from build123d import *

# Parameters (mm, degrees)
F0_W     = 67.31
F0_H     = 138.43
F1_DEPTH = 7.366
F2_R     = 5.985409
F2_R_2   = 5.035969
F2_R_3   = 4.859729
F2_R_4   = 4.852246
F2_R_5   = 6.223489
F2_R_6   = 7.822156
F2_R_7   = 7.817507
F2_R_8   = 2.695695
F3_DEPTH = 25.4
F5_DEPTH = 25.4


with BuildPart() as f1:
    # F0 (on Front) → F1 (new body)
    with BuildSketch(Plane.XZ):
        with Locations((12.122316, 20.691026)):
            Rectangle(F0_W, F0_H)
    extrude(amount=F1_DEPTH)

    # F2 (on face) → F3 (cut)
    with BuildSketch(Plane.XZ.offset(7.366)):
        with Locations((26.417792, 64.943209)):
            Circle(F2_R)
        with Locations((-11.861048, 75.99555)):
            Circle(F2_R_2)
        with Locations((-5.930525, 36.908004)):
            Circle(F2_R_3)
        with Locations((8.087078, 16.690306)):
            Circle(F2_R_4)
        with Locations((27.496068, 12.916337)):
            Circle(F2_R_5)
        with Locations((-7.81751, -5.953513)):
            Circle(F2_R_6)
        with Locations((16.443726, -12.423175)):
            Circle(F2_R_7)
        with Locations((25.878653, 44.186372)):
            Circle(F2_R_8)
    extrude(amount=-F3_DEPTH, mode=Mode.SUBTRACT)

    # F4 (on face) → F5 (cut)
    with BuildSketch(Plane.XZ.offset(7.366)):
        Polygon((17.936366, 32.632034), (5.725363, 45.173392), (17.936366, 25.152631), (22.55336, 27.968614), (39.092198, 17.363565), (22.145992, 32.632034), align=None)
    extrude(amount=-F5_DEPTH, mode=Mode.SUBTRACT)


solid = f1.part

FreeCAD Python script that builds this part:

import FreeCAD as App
import Part
import Sketcher
from FreeCAD import Vector
Q = App.Units.Quantity


def add_polygon(sketch, points):
    """Adds a closed chain of lines whose ends are joined by coincident constraints."""
    first, n = sketch.GeometryCount, len(points)
    for a, b in zip(points, points[1:] + points[:1]):
        sketch.addGeometry(Part.LineSegment(App.Vector(*a, 0), App.Vector(*b, 0)), False)
    for i in range(n):
        sketch.addConstraint(Sketcher.Constraint("Coincident", first + i, 2, first + (i + 1) % n, 1))

doc = App.newDocument("Part")
params = doc.addObject("Spreadsheet::Sheet", "Params")
for row, (alias, value) in enumerate([
    ("sketch1_width", "2.65 in"),
    ("sketch1_height", "5.45 in"),
    ("pad1_length", "0.29 in"),
    ("pocket1_length", "1 in"),
    ("pocket2_length", "1 in"),
], start=1):
    params.set(f"A{row}", alias)
    params.set(f"B{row}", "=" + value)
    params.setAlias(f"B{row}", alias)

body = doc.addObject("PartDesign::Body", "Body")

# Sketch on XZ plane
sketch1 = body.newObject("Sketcher::SketchObject", "Sketch")
sketch1.AttachmentSupport = (doc.getObject("XZ_Plane"), [""])
sketch1.MapMode = "FlatFace"
add_polygon(sketch1, [(-22, 90), (-22, -49), (46, -49), (46, 90)])  # lines 0-3
sketch1.addConstraint([
    Sketcher.Constraint("Vertical", 0),
    Sketcher.Constraint("Horizontal", 1),
    Sketcher.Constraint("Vertical", 2),
    Sketcher.Constraint("Horizontal", 3),
    Sketcher.Constraint("DistanceX", 1, 1, 1, 2, Q("2.65 in")),
    Sketcher.Constraint("DistanceY", 0, 2, 0, 1, Q("5.45 in")),
    Sketcher.Constraint("DistanceX", 0, 2, -1, 1, 21.532684),
    Sketcher.Constraint("DistanceY", 0, 2, -1, 1, 48.523974),
])
sketch1.setExpression("Constraints[8]", "Params.sketch1_width")
sketch1.setExpression("Constraints[9]", "Params.sketch1_height")
pad1 = body.newObject("PartDesign::Pad", "Pad")
pad1.Profile = sketch1
pad1.setExpression("Length", "Params.pad1_length")

# Sketch on XZ plane
sketch2 = body.newObject("Sketcher::SketchObject", "Sketch001")
sketch2.AttachmentSupport = (doc.getObject("XZ_Plane"), [""])
sketch2.MapMode = "FlatFace"
sketch2.AttachmentOffset = App.Placement(Vector(0, 0, 0.29 * 25.4), App.Rotation())
sketch2.addGeometry([
    Part.Circle(Vector(26.4, 64.9, 0), Vector(0, 0, 1), 6),  # 0
    Part.Circle(Vector(-11.9, 76, 0), Vector(0, 0, 1), 5),  # 1
    Part.Circle(Vector(-5.9, 36.9, 0), Vector(0, 0, 1), 4.9),  # 2
    Part.Circle(Vector(8.1, 16.7, 0), Vector(0, 0, 1), 4.9),  # 3
    Part.Circle(Vector(27.5, 12.9, 0), Vector(0, 0, 1), 6.2),  # 4
    Part.Circle(Vector(-7.8, -6, 0), Vector(0, 0, 1), 7.8),  # 5
    Part.Circle(Vector(16.4, -12.4, 0), Vector(0, 0, 1), 7.8),  # 6
    Part.Circle(Vector(25.9, 44.2, 0), Vector(0, 0, 1), 2.7),  # 7
], False)
sketch2.addConstraint([
    Sketcher.Constraint("Diameter", 5, 15.644312),
    Sketcher.Constraint("Diameter", 7, 5.39139),
    Sketcher.Constraint("Diameter", 0, 11.970818),
    Sketcher.Constraint("Diameter", 1, 10.071938),
    Sketcher.Constraint("Diameter", 2, 9.719458),
    Sketcher.Constraint("Diameter", 3, 9.704492),
    Sketcher.Constraint("Diameter", 4, 12.446978),
    Sketcher.Constraint("Diameter", 6, 15.635014),
    Sketcher.Constraint("DistanceY", 6, 3, 3, 3, Q("1.1462 in")),
    Sketcher.Constraint("DistanceX", 5, 3, 0, 3, 34.235302),
    Sketcher.Constraint("DistanceX", 1, 3, 7, 3, 37.739701),
    Sketcher.Constraint("DistanceX", -1, 1, 0, 3, 26.417792),
    Sketcher.Constraint("DistanceY", -1, 1, 0, 3, 64.943209),
    Sketcher.Constraint("DistanceY", -1, 1, 1, 3, 75.99555),
    Sketcher.Constraint("DistanceX", -1, 1, 4, 3, 27.496068),
    Sketcher.Constraint("DistanceX", 1, 3, 0, 3, 38.27884),
    Sketcher.Constraint("DistanceX", 3, 3, 4, 3, 19.40899),
    Sketcher.Constraint("DistanceY", 4, 3, 3, 3, 3.773969),
    Sketcher.Constraint("DistanceY", 4, 3, 0, 3, 52.026872),
    Sketcher.Constraint("DistanceY", 5, 3, 3, 3, 22.643819),
    Sketcher.Constraint("DistanceX", 3, 3, 6, 3, 8.356648),
    Sketcher.Constraint("DistanceX", 2, 3, 6, 3, 22.374251),
    Sketcher.Constraint("DistanceY", 6, 3, 2, 3, 49.331179),
    Sketcher.Constraint("DistanceY", 2, 3, 7, 3, 7.278368),
])
pocket1 = body.newObject("PartDesign::Pocket", "Pocket")
pocket1.Profile = sketch2
pocket1.setExpression("Length", "Params.pocket1_length")

# Sketch on XZ plane
sketch3 = body.newObject("Sketcher::SketchObject", "Sketch002")
sketch3.AttachmentSupport = (doc.getObject("XZ_Plane"), [""])
sketch3.MapMode = "FlatFace"
sketch3.AttachmentOffset = App.Placement(Vector(0, 0, 0.29 * 25.4), App.Rotation())
add_polygon(sketch3, [(17.9, 32.6), (5.7, 45.2), (17.9, 25.2), (22.6, 28), (39.1, 17.4), (22.1, 32.6)])  # lines 0-5
sketch3.addConstraint([
    Sketcher.Constraint("Horizontal", 5),
    Sketcher.Constraint("Perpendicular", 1, 2),
    Sketcher.Constraint("Vertical", 1, 2, 5, 2),
    Sketcher.Constraint("DistanceX", -1, 1, 3, 2, 39.092198),
    Sketcher.Constraint("Distance", 0, 17.504121),
    Sketcher.Constraint("Distance", 1, 23.450788),
    Sketcher.Constraint("Distance", 3, 19.646888),
    Sketcher.Constraint("DistanceX", 5, 2, 5, 1, 4.209626),
    Sketcher.Constraint("DistanceY", -1, 1, 1, 2, 25.152631),
    Sketcher.Constraint("DistanceX", -1, 1, 2, 2, 22.55336),
    Sketcher.Constraint("DistanceX", -1, 1, 4, 2, 22.145992),
    Sketcher.Constraint("DistanceY", 1, 2, 0, 2, 20.020761),
])
pocket2 = body.newObject("PartDesign::Pocket", "Pocket001")
pocket2.Profile = sketch3
pocket2.setExpression("Length", "Params.pocket2_length")

doc.recompute()
